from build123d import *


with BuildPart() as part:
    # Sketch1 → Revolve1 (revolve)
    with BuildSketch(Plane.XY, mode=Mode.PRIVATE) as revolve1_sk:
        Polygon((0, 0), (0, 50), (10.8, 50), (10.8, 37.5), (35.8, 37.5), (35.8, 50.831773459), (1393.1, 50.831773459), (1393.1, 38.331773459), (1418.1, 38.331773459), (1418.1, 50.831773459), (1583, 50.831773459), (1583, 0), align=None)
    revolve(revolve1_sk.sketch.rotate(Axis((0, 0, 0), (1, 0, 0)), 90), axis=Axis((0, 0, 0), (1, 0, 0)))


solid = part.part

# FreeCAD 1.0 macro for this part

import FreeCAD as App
import Part
import Sketcher
from FreeCAD import Vector
Q = App.Units.Quantity

doc = App.newDocument("Part")
body = doc.addObject("PartDesign::Body", "Body")

sketch1 = doc.addObject("Sketcher::SketchObject", "Sketch")
body.addObject(sketch1)
sketch1.AttachmentSupport = (doc.XY_Plane, [""])
sketch1.MapMode = "FlatFace"
sketch1.addGeometry([
    Part.LineSegment(Vector(0, 50, 0), Vector(0, 0, 0)),
    Part.LineSegment(Vector(0, 0, 0), Vector(1583, 0, 0)),
    Part.LineSegment(Vector(1583, 0, 0), Vector(1583, 51, 0)),
    Part.LineSegment(Vector(1583, 51, 0), Vector(1418, 51, 0)),
    Part.LineSegment(Vector(1418, 51, 0), Vector(1418, 38, 0)),
    Part.LineSegment(Vector(1418, 38, 0), Vector(1393, 38, 0)),
    Part.LineSegment(Vector(1393, 38, 0), Vector(1393, 51, 0)),
    Part.LineSegment(Vector(1393, 51, 0), Vector(36, 51, 0)),
    Part.LineSegment(Vector(36, 51, 0), Vector(36, 38, 0)),
    Part.LineSegment(Vector(36, 38, 0), Vector(11, 38, 0)),
    Part.LineSegment(Vector(11, 38, 0), Vector(11, 50, 0)),
    Part.LineSegment(Vector(11, 50, 0), Vector(0, 50, 0)),
], False)
sketch1.addConstraint([
    Sketcher.Constraint("Coincident", 0, 2, 1, 1),
    Sketcher.Constraint("Coincident", 1, 2, 2, 1),
    Sketcher.Constraint("Coincident", 2, 2, 3, 1),
    Sketcher.Constraint("Coincident", 3, 2, 4, 1),
    Sketcher.Constraint("Coincident", 4, 2, 5, 1),
    Sketcher.Constraint("Coincident", 5, 2, 6, 1),
    Sketcher.Constraint("Coincident", 6, 2, 7, 1),
    Sketcher.Constraint("Coincident", 7, 2, 8, 1),
    Sketcher.Constraint("Coincident", 8, 2, 9, 1),
    Sketcher.Constraint("Coincident", 9, 2, 10, 1),
    Sketcher.Constraint("Coincident", 10, 2, 11, 1),
    Sketcher.Constraint("Coincident", 11, 2, 0, 1),
    Sketcher.Constraint("Vertical", 0),
    Sketcher.Constraint("Horizontal", 1),
    Sketcher.Constraint("Vertical", 2),
    Sketcher.Constraint("Horizontal", 3),
    Sketcher.Constraint("Vertical", 4),
    Sketcher.Constraint("Horizontal", 5),
    Sketcher.Constraint("Vertical", 6),
    Sketcher.Constraint("Horizontal", 7),
    Sketcher.Constraint("Vertical", 8),
    Sketcher.Constraint("Horizontal", 9),
    Sketcher.Constraint("Vertical", 10),
    Sketcher.Constraint("Horizontal", 11),
    Sketcher.Constraint("Coincident", 0, 2, -1, 1),
    Sketcher.Constraint("Horizontal", 3, 2, 6, 2),
    Sketcher.Constraint("Equal", 5, 9),
    Sketcher.Constraint("Equal", 6, 10),
    Sketcher.Constraint("DistanceX", 1, 1, 1, 2, Q("1583 mm")),
    Sketcher.Constraint("DistanceX", 5, 2, 5, 1, Q("25 mm")),
    Sketcher.Constraint("DistanceY", 0, 2, 0, 1, Q("50 mm")),
    Sketcher.Constraint("DistanceX", 3, 2, 3, 1, Q("164.9 mm")),
    Sketcher.Constraint("DistanceX", 7, 2, 7, 1, Q("1357.3 mm")),
    Sketcher.Constraint("DistanceY", 4, 2, 4, 1, Q("12.5 mm")),
    Sketcher.Constraint("DistanceY", 2, 1, 2, 2, Q("50.831773 mm")),
])
revolution = doc.addObject("PartDesign::Revolution", "Revolution")
body.addObject(revolution)
revolution.Profile = sketch1
revolution.ReferenceAxis = (sketch1, ["H_Axis"])
revolution.Angle = 360

doc.recompute()
